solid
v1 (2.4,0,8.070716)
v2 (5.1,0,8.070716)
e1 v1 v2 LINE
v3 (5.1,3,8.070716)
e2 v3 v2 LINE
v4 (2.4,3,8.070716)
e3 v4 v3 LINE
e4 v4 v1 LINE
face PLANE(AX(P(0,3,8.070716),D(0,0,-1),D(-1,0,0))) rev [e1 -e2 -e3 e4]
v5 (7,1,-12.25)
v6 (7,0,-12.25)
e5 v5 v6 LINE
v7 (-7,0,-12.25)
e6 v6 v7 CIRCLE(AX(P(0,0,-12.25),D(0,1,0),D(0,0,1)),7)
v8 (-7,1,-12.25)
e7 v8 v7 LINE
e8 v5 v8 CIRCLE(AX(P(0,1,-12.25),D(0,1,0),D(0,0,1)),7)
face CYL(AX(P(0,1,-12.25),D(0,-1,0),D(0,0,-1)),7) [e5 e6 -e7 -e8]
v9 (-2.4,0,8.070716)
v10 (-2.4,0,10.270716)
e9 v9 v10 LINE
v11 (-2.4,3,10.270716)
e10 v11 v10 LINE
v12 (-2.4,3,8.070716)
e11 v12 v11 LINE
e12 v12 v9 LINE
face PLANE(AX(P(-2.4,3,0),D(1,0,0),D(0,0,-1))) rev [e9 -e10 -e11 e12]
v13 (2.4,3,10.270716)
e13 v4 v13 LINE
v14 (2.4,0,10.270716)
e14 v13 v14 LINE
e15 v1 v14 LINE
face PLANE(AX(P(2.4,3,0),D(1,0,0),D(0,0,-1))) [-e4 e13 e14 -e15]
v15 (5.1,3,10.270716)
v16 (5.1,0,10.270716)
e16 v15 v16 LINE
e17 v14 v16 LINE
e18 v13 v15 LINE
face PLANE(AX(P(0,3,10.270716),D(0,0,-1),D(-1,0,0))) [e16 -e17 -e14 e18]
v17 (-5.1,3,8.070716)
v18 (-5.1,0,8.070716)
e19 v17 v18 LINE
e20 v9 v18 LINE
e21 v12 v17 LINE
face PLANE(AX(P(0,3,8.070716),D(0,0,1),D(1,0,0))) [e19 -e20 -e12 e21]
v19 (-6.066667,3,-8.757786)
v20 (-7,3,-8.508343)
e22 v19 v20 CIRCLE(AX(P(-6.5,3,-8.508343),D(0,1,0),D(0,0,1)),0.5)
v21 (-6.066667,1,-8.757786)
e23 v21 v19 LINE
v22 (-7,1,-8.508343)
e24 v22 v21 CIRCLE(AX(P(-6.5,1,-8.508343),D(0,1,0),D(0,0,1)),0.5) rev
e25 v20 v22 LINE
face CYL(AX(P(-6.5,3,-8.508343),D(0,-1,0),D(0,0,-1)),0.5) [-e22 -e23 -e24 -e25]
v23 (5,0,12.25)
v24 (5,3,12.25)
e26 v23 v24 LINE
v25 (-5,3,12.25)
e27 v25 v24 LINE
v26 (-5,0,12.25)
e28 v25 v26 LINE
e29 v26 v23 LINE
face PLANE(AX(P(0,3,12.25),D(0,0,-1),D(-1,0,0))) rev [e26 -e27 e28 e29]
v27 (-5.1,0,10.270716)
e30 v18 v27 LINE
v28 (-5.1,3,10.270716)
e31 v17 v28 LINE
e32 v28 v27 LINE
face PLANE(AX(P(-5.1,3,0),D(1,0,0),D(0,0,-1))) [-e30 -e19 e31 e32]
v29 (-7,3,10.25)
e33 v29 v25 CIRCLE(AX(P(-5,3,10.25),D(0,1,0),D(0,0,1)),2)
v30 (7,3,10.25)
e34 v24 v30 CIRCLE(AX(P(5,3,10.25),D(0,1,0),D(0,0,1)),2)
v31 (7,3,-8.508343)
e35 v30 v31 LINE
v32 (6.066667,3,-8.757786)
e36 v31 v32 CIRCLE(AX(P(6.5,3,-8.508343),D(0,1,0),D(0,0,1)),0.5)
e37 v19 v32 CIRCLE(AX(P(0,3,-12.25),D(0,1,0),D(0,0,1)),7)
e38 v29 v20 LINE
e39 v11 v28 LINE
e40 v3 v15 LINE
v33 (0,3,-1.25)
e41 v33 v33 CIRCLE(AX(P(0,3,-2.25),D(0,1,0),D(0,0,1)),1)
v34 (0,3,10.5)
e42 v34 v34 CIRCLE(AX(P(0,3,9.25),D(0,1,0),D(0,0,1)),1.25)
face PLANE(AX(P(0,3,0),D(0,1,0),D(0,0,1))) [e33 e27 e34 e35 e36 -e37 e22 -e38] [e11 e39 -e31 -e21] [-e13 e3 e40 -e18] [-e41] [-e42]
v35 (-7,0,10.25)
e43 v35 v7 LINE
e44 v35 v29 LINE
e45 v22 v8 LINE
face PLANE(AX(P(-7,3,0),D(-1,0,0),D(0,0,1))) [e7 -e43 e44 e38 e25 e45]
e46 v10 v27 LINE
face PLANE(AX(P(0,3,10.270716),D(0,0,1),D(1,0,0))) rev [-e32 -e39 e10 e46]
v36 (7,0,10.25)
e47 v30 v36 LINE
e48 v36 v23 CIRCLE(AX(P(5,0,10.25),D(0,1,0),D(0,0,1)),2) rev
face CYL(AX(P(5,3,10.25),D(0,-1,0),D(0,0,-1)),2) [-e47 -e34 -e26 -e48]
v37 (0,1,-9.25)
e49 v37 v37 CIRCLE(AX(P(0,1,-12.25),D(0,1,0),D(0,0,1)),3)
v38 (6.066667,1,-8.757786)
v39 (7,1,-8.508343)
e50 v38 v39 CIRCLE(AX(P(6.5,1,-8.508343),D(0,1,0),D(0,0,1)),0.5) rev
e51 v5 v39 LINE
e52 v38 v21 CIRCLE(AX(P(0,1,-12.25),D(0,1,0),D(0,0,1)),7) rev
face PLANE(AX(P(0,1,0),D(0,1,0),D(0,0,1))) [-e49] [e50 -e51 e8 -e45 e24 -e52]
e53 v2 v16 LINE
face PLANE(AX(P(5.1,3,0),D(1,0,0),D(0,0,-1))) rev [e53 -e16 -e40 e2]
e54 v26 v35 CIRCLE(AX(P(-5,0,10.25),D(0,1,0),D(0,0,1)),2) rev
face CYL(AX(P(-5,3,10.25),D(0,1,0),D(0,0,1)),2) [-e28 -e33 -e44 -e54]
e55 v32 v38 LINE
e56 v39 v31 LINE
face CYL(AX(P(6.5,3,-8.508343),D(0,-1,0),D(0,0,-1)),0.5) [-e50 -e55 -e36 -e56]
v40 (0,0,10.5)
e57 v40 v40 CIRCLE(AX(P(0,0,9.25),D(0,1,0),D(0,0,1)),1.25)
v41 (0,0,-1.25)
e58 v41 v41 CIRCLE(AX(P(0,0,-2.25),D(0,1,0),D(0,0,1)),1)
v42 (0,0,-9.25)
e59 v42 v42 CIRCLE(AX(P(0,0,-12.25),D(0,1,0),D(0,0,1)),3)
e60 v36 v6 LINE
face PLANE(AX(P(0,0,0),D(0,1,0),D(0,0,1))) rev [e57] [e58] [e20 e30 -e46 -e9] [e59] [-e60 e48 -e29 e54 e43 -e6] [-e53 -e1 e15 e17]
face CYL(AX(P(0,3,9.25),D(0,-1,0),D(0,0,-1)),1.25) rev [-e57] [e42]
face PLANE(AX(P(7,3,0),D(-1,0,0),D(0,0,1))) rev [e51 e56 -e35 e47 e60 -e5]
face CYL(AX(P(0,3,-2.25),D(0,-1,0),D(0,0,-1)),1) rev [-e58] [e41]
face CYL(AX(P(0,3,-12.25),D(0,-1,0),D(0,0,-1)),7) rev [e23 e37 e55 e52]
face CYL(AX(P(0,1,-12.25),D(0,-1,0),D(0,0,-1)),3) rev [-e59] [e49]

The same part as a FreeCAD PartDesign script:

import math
import FreeCAD as App
import Part
import Sketcher

V = App.Vector


def edges_at(feature, points):
    """Names of the edges that pass closest to the given points."""
    edges = feature.Shape.Edges
    near = lambda p: min(range(len(edges)), key=lambda i: edges[i].distToShape(Part.Vertex(*p))[0])
    return sorted({f"Edge{near(p) + 1}" for p in points})


def add_polygon(sketch, points):
    """Adds a closed chain of lines whose ends are joined by coincident constraints."""
    first, n = sketch.GeometryCount, len(points)
    for a, b in zip(points, points[1:] + points[:1]):
        sketch.addGeometry(Part.LineSegment(App.Vector(*a, 0), App.Vector(*b, 0)), False)
    for i in range(n):
        sketch.addConstraint(Sketcher.Constraint("Coincident", first + i, 2, first + (i + 1) % n, 1))

doc = App.newDocument("Part")
body = doc.addObject("PartDesign::Body", "Body")

# Sketch on XZ plane
sketch1 = doc.addObject("Sketcher::SketchObject", "Sketch")
body.addObject(sketch1)
sketch1.AttachmentSupport = (doc.XZ_Plane, [""])
sketch1.MapMode = "FlatFace"
sketch1.addGeometry(Part.ArcOfCircle(Part.Circle(V(0, -12.25, 0), V(0, 0, 1), 7), math.radians(90), math.radians(180)), False)
sketch1.addGeometry(Part.ArcOfCircle(Part.Circle(V(0, -12.25, 0), V(0, 0, 1), 7), math.radians(0), math.radians(90)), False)
sketch1.addGeometry(Part.ArcOfCircle(Part.Circle(V(0, -12.25, 0), V(0, 0, 1), 7), math.radians(180), math.radians(360)), False)
sketch1.addGeometry(Part.ArcOfCircle(Part.Circle(V(0, -12.25, 0), V(0, 0, 1), 3), math.radians(90), math.radians(180)), False)
sketch1.addGeometry(Part.ArcOfCircle(Part.Circle(V(0, -12.25, 0), V(0, 0, 1), 3), math.radians(180), math.radians(360)), False)
sketch1.addGeometry(Part.ArcOfCircle(Part.Circle(V(0, -12.25, 0), V(0, 0, 1), 3), math.radians(0), math.radians(90)), False)
sketch1.addConstraint(Sketcher.Constraint("Tangent", 0, 1, 1, 2))
sketch1.addConstraint(Sketcher.Constraint("Tangent", 1, 1, 2, 2))
sketch1.addConstraint(Sketcher.Constraint("Tangent", 2, 1, 0, 2))
sketch1.addConstraint(Sketcher.Constraint("Tangent", 3, 2, 4, 1))
sketch1.addConstraint(Sketcher.Constraint("Tangent", 4, 2, 5, 1))
sketch1.addConstraint(Sketcher.Constraint("Tangent", 5, 2, 3, 1))
sketch1.addConstraint(Sketcher.Constraint("Coincident", 3, 3, 0, 3))
sketch1.addConstraint(Sketcher.Constraint("Symmetric", 1, 1, 2, 1, -2))
sketch1.addConstraint(Sketcher.Constraint("PointOnObject", 0, 1, -2))
sketch1.addConstraint(Sketcher.Constraint("PointOnObject", 5, 2, -2))
sketch1.addConstraint(Sketcher.Constraint("Horizontal", 5, 3, 1, 1))
sketch1.addConstraint(Sketcher.Constraint("Horizontal", 2, 1, 3, 2))
sketch1.addConstraint(Sketcher.Constraint("Horizontal", 3, 2, 4, 2))
sketch1.addConstraint(Sketcher.Constraint("Radius", 0, 7.0))
sketch1.addConstraint(Sketcher.Constraint("Radius", 3, 3.0))
sketch1.addConstraint(Sketcher.Constraint("DistanceY", 0, 3, -1, 1, 12.25))
pad1 = doc.addObject("PartDesign::Pad", "Pad")
body.addObject(pad1)
pad1.Profile = sketch1
pad1.Length = 1
pad1.Reversed = True

# Sketch on XZ plane
sketch2 = doc.addObject("Sketcher::SketchObject", "Sketch001")
body.addObject(sketch2)
sketch2.AttachmentSupport = (doc.XZ_Plane, [""])
sketch2.MapMode = "FlatFace"
sketch2.addGeometry(Part.ArcOfCircle(Part.Circle(V(0, -12.25, 0), V(0, 0, 1), 7), math.radians(0), math.radians(90)), False)  # 0
sketch2.addGeometry(Part.ArcOfCircle(Part.Circle(V(0, -12.25, 0), V(0, 0, 1), 7), math.radians(90), math.radians(180)), False)  # 1
sketch2.addGeometry(Part.LineSegment(V(-7, -12.25, 0), V(-7, 12.25, 0)), False)  # 2
sketch2.addGeometry(Part.LineSegment(V(-7, 12.25, 0), V(7, 12.25, 0)), False)  # 3
sketch2.addGeometry(Part.LineSegment(V(7, 12.25, 0), V(7, -12.25, 0)), False)  # 4
add_polygon(sketch2, [(-2.4, 10.270716), (-5.1, 10.270716), (-5.1, 8.070716), (-2.4, 8.070716)])  # lines 5-8
sketch2.addGeometry(Part.Circle(V(0, 9.25, 0), V(0, 0, 1), 1.25), False)  # 9
add_polygon(sketch2, [(5.1, 10.270716), (2.4, 10.270716), (2.4, 8.070716), (5.1, 8.070716)])  # lines 10-13
sketch2.addGeometry(Part.ArcOfCircle(Part.Circle(V(0, -2.25, 0), V(0, 0, 1), 1), math.radians(-90), math.radians(0)), False)  # 14
sketch2.addGeometry(Part.ArcOfCircle(Part.Circle(V(0, -2.25, 0), V(0, 0, 1), 1), math.radians(0), math.radians(270)), False)  # 15
sketch2.addConstraint(Sketcher.Constraint("Tangent", 0, 2, 1, 1))
sketch2.addConstraint(Sketcher.Constraint("Tangent", 1, 2, 2, 1))
sketch2.addConstraint(Sketcher.Constraint("Coincident", 2, 2, 3, 1))
sketch2.addConstraint(Sketcher.Constraint("Coincident", 3, 2, 4, 1))
sketch2.addConstraint(Sketcher.Constraint("Tangent", 4, 2, 0, 1))
sketch2.addConstraint(Sketcher.Constraint("Tangent", 14, 1, 15, 2))
sketch2.addConstraint(Sketcher.Constraint("Coincident", 15, 1, 14, 2))
sketch2.addConstraint(Sketcher.Constraint("Vertical", 2))
sketch2.addConstraint(Sketcher.Constraint("Horizontal", 3))
sketch2.addConstraint(Sketcher.Constraint("Vertical", 4))
sketch2.addConstraint(Sketcher.Constraint("Horizontal", 5))
sketch2.addConstraint(Sketcher.Constraint("Vertical", 6))
sketch2.addConstraint(Sketcher.Constraint("Horizontal", 7))
sketch2.addConstraint(Sketcher.Constraint("Vertical", 8))
sketch2.addConstraint(Sketcher.Constraint("Horizontal", 10))
sketch2.addConstraint(Sketcher.Constraint("Vertical", 11))
sketch2.addConstraint(Sketcher.Constraint("Horizontal", 12))
sketch2.addConstraint(Sketcher.Constraint("Vertical", 13))
sketch2.addConstraint(Sketcher.Constraint("Equal", 0, 1))
sketch2.addConstraint(Sketcher.Constraint("Symmetric", 1, 2, 3, 2, -1, 1))
sketch2.addConstraint(Sketcher.Constraint("Symmetric", 8, 2, 10, 2, -2))
sketch2.addConstraint(Sketcher.Constraint("Symmetric", 6, 2, 12, 2, -2))
sketch2.addConstraint(Sketcher.Constraint("PointOnObject", 9, 3, -2))
sketch2.addConstraint(Sketcher.Constraint("PointOnObject", 14, 3, -2))
sketch2.addConstraint(Sketcher.Constraint("PointOnObject", 0, 2, -2))
sketch2.addConstraint(Sketcher.Constraint("PointOnObject", 14, 1, -2))
sketch2.addConstraint(Sketcher.Constraint("Horizontal", 14, 3, 15, 1))
sketch2.addConstraint(Sketcher.Constraint("Radius", 0, 7.0))
sketch2.addConstraint(Sketcher.Constraint("Radius", 14, 1.0))
sketch2.addConstraint(Sketcher.Constraint("Diameter", 9, 2.5))
sketch2.addConstraint(Sketcher.Constraint("DistanceX", 5, 2, 5, 1, 2.7))
sketch2.addConstraint(Sketcher.Constraint("DistanceY", 2, 1, 2, 2, 24.5))
sketch2.addConstraint(Sketcher.Constraint("DistanceY", 6, 2, 6, 1, 2.2))
sketch2.addConstraint(Sketcher.Constraint("DistanceY", 0, 3, 14, 3, 10.0))
sketch2.addConstraint(Sketcher.Constraint("DistanceY", 9, 3, 2, 2, 3.0))
sketch2.addConstraint(Sketcher.Constraint("DistanceX", 5, 2, -1, 1, 5.1))
sketch2.addConstraint(Sketcher.Constraint("DistanceY", -1, 1, 5, 2, 10.270716))
pad2 = doc.addObject("PartDesign::Pad", "Pad001")
body.addObject(pad2)
pad2.Profile = sketch2
pad2.Length = 3
pad2.Reversed = True
doc.recompute()

fillet = doc.addObject("PartDesign::Fillet", "Fillet")
body.addObject(fillet)
fillet.Base = (pad2, edges_at(pad2, [(7, 2, -12.25), (-7, 2, -12.25)]))
fillet.Radius = 0.5
doc.recompute()

fillet2 = doc.addObject("PartDesign::Fillet", "Fillet001")
body.addObject(fillet2)
fillet2.Base = (fillet, edges_at(fillet, [(7, 1.5, 12.25), (-7, 1.5, 12.25)]))
fillet2.Radius = 2

doc.recompute()
